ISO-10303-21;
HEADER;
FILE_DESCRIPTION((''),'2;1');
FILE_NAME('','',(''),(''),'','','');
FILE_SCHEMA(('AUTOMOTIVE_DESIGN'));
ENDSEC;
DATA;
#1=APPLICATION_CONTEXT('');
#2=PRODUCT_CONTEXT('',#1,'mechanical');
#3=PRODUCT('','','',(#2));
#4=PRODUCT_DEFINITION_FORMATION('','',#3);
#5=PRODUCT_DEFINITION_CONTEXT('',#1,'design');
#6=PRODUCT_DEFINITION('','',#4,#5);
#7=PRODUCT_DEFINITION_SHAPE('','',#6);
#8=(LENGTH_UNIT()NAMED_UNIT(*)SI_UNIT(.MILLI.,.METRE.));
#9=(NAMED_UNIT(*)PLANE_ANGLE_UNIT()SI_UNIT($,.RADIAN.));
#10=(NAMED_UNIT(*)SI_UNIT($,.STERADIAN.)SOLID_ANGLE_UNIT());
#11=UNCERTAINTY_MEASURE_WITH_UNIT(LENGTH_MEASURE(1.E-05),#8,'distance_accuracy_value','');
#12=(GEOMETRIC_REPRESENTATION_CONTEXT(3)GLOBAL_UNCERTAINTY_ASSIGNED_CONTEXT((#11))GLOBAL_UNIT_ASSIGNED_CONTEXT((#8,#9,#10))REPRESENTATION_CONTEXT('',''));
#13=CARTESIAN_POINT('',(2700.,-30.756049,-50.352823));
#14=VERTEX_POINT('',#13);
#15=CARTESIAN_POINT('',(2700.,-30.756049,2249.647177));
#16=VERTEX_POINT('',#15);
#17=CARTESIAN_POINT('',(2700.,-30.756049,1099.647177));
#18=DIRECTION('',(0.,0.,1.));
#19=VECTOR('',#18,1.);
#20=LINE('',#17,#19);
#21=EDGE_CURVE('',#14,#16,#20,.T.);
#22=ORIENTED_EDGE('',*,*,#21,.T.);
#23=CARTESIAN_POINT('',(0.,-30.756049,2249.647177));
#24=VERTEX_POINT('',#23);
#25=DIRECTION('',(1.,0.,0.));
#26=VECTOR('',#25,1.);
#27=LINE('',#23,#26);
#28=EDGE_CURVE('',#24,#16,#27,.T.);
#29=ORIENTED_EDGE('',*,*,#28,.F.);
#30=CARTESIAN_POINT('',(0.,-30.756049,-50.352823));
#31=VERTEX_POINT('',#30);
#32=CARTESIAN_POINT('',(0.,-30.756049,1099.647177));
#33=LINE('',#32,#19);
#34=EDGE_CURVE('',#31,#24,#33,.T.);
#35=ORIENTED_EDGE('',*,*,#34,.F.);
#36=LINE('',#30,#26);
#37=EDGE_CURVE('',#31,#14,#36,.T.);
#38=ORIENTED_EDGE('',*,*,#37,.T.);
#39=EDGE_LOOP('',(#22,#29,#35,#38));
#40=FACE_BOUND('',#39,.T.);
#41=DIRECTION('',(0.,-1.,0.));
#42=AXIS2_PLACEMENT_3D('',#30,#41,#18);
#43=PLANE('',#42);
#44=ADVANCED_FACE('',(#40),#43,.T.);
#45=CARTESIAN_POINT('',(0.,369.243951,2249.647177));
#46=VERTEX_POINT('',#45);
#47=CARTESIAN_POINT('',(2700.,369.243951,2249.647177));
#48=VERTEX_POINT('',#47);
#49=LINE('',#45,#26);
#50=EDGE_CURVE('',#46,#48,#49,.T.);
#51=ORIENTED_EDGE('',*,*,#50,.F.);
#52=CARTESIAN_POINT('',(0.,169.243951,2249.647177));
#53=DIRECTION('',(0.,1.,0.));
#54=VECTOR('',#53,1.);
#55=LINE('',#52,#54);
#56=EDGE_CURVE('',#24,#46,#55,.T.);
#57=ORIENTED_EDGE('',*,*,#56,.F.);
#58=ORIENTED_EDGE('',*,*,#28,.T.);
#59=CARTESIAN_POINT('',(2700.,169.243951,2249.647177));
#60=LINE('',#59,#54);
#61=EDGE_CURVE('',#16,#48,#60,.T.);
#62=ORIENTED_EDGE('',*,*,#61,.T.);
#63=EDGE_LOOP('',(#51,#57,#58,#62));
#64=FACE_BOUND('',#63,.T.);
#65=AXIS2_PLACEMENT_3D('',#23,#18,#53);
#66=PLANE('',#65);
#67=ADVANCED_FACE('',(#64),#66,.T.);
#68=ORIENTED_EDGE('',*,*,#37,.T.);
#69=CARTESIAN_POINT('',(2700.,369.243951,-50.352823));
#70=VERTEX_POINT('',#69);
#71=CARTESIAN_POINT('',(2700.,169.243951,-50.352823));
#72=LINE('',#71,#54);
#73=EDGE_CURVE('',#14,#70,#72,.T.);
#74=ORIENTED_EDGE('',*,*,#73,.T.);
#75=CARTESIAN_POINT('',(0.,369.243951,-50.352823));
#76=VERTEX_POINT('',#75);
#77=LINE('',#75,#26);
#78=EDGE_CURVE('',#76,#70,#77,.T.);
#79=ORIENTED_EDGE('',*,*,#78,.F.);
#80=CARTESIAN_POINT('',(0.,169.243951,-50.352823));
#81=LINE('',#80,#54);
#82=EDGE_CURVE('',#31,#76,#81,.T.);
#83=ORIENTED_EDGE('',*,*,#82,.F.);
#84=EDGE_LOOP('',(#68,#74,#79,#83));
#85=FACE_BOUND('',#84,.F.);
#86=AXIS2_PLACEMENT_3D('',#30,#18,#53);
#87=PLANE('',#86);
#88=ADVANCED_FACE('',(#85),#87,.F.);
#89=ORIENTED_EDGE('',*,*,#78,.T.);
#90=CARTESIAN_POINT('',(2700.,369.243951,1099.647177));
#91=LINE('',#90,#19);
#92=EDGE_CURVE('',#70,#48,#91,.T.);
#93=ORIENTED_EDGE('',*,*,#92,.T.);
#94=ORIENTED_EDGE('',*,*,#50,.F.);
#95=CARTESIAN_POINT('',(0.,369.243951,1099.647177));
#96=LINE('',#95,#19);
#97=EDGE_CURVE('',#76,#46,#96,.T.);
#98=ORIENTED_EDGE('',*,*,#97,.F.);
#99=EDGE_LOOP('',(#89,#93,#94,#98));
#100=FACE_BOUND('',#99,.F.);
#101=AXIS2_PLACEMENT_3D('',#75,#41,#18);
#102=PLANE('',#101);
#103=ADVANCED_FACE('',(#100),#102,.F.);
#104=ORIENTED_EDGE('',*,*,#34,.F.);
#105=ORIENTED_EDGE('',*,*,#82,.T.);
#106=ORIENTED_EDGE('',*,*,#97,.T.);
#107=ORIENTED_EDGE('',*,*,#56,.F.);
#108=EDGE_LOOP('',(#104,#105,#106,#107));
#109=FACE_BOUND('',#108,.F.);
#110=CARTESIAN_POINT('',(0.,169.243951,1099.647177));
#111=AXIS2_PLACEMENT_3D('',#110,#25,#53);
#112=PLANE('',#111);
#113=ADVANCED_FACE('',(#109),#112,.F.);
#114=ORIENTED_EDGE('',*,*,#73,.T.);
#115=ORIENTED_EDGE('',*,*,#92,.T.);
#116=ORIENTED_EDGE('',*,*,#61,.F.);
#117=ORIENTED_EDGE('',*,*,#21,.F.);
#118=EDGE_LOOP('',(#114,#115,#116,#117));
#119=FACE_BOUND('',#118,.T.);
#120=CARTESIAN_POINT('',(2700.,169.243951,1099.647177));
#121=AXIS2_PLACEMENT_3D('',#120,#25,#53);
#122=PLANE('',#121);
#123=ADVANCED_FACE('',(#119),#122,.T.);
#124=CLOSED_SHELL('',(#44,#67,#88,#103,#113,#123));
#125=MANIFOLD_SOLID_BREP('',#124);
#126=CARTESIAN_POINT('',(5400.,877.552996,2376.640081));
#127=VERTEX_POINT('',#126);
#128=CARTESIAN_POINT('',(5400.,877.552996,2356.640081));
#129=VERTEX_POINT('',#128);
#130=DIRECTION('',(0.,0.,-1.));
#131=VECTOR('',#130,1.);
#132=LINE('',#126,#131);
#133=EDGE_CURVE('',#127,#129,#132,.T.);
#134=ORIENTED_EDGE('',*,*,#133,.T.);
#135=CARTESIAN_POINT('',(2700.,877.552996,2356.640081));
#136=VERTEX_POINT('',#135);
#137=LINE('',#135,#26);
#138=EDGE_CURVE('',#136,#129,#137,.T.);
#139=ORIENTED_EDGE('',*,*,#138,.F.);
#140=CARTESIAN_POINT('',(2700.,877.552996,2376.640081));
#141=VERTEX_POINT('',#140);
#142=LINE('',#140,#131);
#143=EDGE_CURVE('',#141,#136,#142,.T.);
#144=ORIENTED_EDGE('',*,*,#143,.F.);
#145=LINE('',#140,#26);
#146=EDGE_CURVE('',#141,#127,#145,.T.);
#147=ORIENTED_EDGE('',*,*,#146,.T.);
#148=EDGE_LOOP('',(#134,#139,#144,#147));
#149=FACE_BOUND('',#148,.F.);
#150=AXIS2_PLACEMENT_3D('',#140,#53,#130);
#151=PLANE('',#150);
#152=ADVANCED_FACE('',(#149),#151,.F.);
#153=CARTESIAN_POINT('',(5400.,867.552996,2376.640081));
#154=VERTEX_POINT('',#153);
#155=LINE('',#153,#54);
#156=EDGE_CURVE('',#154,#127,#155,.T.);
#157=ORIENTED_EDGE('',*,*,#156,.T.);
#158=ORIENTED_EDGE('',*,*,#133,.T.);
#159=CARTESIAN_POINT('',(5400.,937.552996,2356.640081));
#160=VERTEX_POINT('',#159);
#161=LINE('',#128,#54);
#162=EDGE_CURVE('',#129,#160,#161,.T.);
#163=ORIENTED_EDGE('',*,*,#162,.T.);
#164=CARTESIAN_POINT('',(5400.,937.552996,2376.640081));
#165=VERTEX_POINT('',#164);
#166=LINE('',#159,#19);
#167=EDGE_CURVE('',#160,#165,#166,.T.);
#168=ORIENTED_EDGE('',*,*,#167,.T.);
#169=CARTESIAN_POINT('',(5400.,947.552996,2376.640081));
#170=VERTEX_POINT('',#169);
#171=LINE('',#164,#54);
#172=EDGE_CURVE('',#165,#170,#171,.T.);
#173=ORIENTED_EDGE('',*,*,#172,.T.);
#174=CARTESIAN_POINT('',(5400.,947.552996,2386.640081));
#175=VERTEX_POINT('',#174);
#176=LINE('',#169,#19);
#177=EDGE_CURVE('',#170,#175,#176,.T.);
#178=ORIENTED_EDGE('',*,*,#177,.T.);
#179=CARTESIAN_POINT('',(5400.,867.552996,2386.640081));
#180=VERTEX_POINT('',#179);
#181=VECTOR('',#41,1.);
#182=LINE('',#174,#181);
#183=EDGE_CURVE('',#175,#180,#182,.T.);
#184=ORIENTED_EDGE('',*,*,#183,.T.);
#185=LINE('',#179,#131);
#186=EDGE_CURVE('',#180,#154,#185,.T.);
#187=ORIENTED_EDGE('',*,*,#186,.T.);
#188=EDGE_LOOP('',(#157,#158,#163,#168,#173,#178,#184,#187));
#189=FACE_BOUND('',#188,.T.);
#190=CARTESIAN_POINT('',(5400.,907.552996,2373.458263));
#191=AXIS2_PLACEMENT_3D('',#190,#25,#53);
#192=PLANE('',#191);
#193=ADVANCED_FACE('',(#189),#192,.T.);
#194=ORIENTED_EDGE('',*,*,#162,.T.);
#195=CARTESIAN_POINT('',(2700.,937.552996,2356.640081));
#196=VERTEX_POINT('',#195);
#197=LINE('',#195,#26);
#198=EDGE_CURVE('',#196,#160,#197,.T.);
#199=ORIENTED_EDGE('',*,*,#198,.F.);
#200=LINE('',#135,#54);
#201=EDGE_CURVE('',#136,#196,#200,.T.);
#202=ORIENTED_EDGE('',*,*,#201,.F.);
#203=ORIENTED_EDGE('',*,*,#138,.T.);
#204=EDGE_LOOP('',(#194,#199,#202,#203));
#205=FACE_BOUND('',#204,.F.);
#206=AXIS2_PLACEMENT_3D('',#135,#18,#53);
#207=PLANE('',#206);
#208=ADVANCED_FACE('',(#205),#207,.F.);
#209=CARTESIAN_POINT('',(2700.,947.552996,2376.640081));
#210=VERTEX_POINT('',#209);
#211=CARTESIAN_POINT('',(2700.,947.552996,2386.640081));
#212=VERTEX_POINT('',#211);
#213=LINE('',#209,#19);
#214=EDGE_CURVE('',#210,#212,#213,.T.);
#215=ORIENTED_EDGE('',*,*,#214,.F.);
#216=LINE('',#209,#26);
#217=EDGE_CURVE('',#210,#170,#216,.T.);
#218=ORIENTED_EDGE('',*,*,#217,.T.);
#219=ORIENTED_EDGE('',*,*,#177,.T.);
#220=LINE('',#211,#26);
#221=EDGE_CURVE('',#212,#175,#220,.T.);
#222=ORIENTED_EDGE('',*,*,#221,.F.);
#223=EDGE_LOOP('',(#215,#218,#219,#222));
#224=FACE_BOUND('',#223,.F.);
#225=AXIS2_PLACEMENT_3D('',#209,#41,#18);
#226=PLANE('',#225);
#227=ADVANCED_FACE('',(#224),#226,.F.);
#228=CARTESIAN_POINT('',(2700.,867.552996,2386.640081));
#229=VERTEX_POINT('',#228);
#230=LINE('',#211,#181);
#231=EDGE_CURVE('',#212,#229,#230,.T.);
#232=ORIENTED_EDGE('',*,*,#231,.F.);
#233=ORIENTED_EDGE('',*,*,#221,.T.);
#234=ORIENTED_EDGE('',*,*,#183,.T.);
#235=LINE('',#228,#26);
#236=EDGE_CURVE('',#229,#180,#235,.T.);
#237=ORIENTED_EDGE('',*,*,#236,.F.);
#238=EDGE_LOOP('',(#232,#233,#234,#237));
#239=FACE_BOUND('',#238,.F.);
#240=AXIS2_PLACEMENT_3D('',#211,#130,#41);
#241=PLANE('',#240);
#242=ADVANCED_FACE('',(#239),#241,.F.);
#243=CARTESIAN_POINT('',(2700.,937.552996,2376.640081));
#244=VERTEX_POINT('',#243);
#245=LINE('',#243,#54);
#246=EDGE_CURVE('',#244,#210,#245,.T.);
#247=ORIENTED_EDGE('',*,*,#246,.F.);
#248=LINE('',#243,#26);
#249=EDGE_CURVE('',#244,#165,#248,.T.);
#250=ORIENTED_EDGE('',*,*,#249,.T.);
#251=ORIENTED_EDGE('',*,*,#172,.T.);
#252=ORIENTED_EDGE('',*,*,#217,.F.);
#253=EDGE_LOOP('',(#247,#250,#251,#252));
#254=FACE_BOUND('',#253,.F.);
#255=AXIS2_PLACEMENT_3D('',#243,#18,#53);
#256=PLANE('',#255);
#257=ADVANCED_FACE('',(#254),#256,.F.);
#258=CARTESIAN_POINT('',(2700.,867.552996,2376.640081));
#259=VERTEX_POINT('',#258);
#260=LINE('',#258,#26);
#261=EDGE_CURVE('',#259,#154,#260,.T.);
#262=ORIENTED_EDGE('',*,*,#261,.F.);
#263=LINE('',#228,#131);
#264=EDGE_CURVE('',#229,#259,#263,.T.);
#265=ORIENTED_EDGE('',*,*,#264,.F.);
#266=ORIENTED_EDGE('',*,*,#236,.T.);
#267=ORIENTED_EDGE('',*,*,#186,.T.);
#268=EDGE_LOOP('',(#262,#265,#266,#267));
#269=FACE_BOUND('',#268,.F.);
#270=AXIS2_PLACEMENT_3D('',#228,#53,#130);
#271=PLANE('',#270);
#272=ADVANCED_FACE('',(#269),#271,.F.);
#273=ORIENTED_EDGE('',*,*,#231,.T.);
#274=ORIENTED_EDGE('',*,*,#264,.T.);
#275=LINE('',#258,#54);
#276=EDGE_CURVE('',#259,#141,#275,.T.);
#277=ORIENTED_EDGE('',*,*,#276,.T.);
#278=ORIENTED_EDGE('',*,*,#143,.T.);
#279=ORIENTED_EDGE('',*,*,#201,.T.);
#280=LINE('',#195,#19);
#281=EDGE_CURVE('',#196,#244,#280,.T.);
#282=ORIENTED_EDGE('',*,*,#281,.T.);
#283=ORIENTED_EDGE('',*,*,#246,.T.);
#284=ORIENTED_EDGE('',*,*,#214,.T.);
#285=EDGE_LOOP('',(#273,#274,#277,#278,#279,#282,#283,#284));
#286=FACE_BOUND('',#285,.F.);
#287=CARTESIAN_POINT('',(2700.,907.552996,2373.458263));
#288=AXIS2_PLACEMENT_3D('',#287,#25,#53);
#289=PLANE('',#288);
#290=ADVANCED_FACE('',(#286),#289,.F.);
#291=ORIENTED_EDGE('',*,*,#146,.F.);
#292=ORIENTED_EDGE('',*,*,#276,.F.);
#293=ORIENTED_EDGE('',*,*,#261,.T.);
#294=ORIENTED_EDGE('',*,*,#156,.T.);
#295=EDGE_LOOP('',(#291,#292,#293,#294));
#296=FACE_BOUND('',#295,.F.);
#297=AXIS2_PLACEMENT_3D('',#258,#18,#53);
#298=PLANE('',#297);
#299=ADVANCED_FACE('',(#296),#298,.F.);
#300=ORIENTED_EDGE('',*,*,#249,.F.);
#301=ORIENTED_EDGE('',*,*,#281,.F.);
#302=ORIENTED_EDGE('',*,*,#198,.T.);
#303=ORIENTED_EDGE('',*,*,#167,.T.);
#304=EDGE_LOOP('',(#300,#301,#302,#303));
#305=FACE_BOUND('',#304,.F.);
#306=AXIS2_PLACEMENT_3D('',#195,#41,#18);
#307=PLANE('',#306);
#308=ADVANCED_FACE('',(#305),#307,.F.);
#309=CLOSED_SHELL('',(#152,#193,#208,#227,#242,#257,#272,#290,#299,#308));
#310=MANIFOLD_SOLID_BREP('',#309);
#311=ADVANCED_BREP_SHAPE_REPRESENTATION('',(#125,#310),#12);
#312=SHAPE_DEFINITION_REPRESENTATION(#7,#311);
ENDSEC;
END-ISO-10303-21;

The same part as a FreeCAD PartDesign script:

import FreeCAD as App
import Part
import Sketcher
from FreeCAD import Vector
Q = App.Units.Quantity

doc = App.newDocument("Part")
params = doc.addObject("Spreadsheet::Sheet", "Params")
for row, (alias, value) in enumerate([
    ("sketch1_width", "400 mm"),
    ("sketch1_height", "2300 mm"),
    ("pad1_length", "2700 mm"),
    ("sketch2_width", "80 mm"),
    ("sketch2_width2", "10 mm"),
    ("sketch2_height", "20 mm"),
    ("pad2_length", "2700 mm"),
], start=1):
    params.set(f"A{row}", alias)
    params.set(f"B{row}", "=" + value)
    params.setAlias(f"B{row}", alias)

body = doc.addObject("PartDesign::Body", "Body")

# Sketch on YZ plane
sketch1 = body.newObject("Sketcher::SketchObject", "Sketch")
sketch1.AttachmentSupport = (doc.getObject("YZ_Plane"), [""])
sketch1.MapMode = "FlatFace"
sketch1.addGeometry(Part.LineSegment(Vector(-30.756049, 2249.647177, 0), Vector(-30.756049, -50.352823, 0)), False)
sketch1.addGeometry(Part.LineSegment(Vector(-30.756049, -50.352823, 0), Vector(369.243951, -50.352823, 0)), False)
sketch1.addGeometry(Part.LineSegment(Vector(369.243951, -50.352823, 0), Vector(369.243951, 2249.647177, 0)), False)
sketch1.addGeometry(Part.LineSegment(Vector(369.243951, 2249.647177, 0), Vector(-30.756049, 2249.647177, 0)), False)
sketch1.addConstraint(Sketcher.Constraint("Coincident", 0, 2, 1, 1))
sketch1.addConstraint(Sketcher.Constraint("Coincident", 1, 2, 2, 1))
sketch1.addConstraint(Sketcher.Constraint("Coincident", 2, 2, 3, 1))
sketch1.addConstraint(Sketcher.Constraint("Coincident", 3, 2, 0, 1))
sketch1.addConstraint(Sketcher.Constraint("Vertical", 0))
sketch1.addConstraint(Sketcher.Constraint("Horizontal", 1))
sketch1.addConstraint(Sketcher.Constraint("Vertical", 2))
sketch1.addConstraint(Sketcher.Constraint("Horizontal", 3))
sketch1.addConstraint(Sketcher.Constraint("DistanceX", 1, 1, 1, 2, Q("400 mm")))
sketch1.addConstraint(Sketcher.Constraint("DistanceY", 0, 2, 0, 1, Q("2300 mm")))
sketch1.addConstraint(Sketcher.Constraint("DistanceX", 0, 2, -1, 1, Q("30.756049 mm")))
sketch1.addConstraint(Sketcher.Constraint("DistanceY", 0, 2, -1, 1, Q("50.352823 mm")))
sketch1.setExpression("Constraints[8]", "Params.sketch1_width")
sketch1.setExpression("Constraints[9]", "Params.sketch1_height")
pad1 = body.newObject("PartDesign::Pad", "Pad")
pad1.Profile = sketch1
pad1.setExpression("Length", "Params.pad1_length")
body2 = doc.addObject("PartDesign::Body", "Body001")

# Sketch on YZ plane
sketch2 = body2.newObject("Sketcher::SketchObject", "Sketch001")
sketch2.AttachmentSupport = (doc.getObject("YZ_Plane001"), [""])
sketch2.MapMode = "FlatFace"
sketch2.AttachmentOffset = App.Placement(Vector(0, 0, 2700), App.Rotation())
sketch2.addGeometry(Part.LineSegment(Vector(947.552996, 2386.640081, 0), Vector(867.552996, 2386.640081, 0)), False)
sketch2.addGeometry(Part.LineSegment(Vector(867.552996, 2386.640081, 0), Vector(867.552996, 2376.640081, 0)), False)
sketch2.addGeometry(Part.LineSegment(Vector(867.552996, 2376.640081, 0), Vector(877.552996, 2376.640081, 0)), False)
sketch2.addGeometry(Part.LineSegment(Vector(877.552996, 2376.640081, 0), Vector(877.552996, 2356.640081, 0)), False)
sketch2.addGeometry(Part.LineSegment(Vector(877.552996, 2356.640081, 0), Vector(937.552996, 2356.640081, 0)), False)
sketch2.addGeometry(Part.LineSegment(Vector(937.552996, 2356.640081, 0), Vector(937.552996, 2376.640081, 0)), False)
sketch2.addGeometry(Part.LineSegment(Vector(937.552996, 2376.640081, 0), Vector(947.552996, 2376.640081, 0)), False)
sketch2.addGeometry(Part.LineSegment(Vector(947.552996, 2376.640081, 0), Vector(947.552996, 2386.640081, 0)), False)
sketch2.addConstraint(Sketcher.Constraint("Coincident", 0, 2, 1, 1))
sketch2.addConstraint(Sketcher.Constraint("Coincident", 1, 2, 2, 1))
sketch2.addConstraint(Sketcher.Constraint("Coincident", 2, 2, 3, 1))
sketch2.addConstraint(Sketcher.Constraint("Coincident", 3, 2, 4, 1))
sketch2.addConstraint(Sketcher.Constraint("Coincident", 4, 2, 5, 1))
sketch2.addConstraint(Sketcher.Constraint("Coincident", 5, 2, 6, 1))
sketch2.addConstraint(Sketcher.Constraint("Coincident", 6, 2, 7, 1))
sketch2.addConstraint(Sketcher.Constraint("Coincident", 7, 2, 0, 1))
sketch2.addConstraint(Sketcher.Constraint("Horizontal", 0))
sketch2.addConstraint(Sketcher.Constraint("Vertical", 1))
sketch2.addConstraint(Sketcher.Constraint("Horizontal", 2))
sketch2.addConstraint(Sketcher.Constraint("Vertical", 3))
sketch2.addConstraint(Sketcher.Constraint("Horizontal", 4))
sketch2.addConstraint(Sketcher.Constraint("Vertical", 5))
sketch2.addConstraint(Sketcher.Constraint("Horizontal", 6))
sketch2.addConstraint(Sketcher.Constraint("Vertical", 7))
sketch2.addConstraint(Sketcher.Constraint("Horizontal", 2, 2, 5, 2))
sketch2.addConstraint(Sketcher.Constraint("Equal", 2, 6))
sketch2.addConstraint(Sketcher.Constraint("Equal", 6, 1))
sketch2.addConstraint(Sketcher.Constraint("DistanceX", 0, 2, 0, 1, Q("80 mm")))
sketch2.addConstraint(Sketcher.Constraint("DistanceX", 2, 1, 2, 2, Q("10 mm")))
sketch2.addConstraint(Sketcher.Constraint("DistanceY", 3, 2, 3, 1, Q("20 mm")))
sketch2.addConstraint(Sketcher.Constraint("DistanceY", -1, 1, 0, 2, Q("2386.640081 mm")))
sketch2.addConstraint(Sketcher.Constraint("DistanceX", -1, 1, 0, 2, Q("867.552996 mm")))
sketch2.setExpression("Constraints[19]", "Params.sketch2_width")
sketch2.setExpression("Constraints[20]", "Params.sketch2_width2")
sketch2.setExpression("Constraints[21]", "Params.sketch2_height")
pad2 = body2.newObject("PartDesign::Pad", "Pad001")
pad2.Profile = sketch2
pad2.setExpression("Length", "Params.pad2_length")

doc.recompute()
